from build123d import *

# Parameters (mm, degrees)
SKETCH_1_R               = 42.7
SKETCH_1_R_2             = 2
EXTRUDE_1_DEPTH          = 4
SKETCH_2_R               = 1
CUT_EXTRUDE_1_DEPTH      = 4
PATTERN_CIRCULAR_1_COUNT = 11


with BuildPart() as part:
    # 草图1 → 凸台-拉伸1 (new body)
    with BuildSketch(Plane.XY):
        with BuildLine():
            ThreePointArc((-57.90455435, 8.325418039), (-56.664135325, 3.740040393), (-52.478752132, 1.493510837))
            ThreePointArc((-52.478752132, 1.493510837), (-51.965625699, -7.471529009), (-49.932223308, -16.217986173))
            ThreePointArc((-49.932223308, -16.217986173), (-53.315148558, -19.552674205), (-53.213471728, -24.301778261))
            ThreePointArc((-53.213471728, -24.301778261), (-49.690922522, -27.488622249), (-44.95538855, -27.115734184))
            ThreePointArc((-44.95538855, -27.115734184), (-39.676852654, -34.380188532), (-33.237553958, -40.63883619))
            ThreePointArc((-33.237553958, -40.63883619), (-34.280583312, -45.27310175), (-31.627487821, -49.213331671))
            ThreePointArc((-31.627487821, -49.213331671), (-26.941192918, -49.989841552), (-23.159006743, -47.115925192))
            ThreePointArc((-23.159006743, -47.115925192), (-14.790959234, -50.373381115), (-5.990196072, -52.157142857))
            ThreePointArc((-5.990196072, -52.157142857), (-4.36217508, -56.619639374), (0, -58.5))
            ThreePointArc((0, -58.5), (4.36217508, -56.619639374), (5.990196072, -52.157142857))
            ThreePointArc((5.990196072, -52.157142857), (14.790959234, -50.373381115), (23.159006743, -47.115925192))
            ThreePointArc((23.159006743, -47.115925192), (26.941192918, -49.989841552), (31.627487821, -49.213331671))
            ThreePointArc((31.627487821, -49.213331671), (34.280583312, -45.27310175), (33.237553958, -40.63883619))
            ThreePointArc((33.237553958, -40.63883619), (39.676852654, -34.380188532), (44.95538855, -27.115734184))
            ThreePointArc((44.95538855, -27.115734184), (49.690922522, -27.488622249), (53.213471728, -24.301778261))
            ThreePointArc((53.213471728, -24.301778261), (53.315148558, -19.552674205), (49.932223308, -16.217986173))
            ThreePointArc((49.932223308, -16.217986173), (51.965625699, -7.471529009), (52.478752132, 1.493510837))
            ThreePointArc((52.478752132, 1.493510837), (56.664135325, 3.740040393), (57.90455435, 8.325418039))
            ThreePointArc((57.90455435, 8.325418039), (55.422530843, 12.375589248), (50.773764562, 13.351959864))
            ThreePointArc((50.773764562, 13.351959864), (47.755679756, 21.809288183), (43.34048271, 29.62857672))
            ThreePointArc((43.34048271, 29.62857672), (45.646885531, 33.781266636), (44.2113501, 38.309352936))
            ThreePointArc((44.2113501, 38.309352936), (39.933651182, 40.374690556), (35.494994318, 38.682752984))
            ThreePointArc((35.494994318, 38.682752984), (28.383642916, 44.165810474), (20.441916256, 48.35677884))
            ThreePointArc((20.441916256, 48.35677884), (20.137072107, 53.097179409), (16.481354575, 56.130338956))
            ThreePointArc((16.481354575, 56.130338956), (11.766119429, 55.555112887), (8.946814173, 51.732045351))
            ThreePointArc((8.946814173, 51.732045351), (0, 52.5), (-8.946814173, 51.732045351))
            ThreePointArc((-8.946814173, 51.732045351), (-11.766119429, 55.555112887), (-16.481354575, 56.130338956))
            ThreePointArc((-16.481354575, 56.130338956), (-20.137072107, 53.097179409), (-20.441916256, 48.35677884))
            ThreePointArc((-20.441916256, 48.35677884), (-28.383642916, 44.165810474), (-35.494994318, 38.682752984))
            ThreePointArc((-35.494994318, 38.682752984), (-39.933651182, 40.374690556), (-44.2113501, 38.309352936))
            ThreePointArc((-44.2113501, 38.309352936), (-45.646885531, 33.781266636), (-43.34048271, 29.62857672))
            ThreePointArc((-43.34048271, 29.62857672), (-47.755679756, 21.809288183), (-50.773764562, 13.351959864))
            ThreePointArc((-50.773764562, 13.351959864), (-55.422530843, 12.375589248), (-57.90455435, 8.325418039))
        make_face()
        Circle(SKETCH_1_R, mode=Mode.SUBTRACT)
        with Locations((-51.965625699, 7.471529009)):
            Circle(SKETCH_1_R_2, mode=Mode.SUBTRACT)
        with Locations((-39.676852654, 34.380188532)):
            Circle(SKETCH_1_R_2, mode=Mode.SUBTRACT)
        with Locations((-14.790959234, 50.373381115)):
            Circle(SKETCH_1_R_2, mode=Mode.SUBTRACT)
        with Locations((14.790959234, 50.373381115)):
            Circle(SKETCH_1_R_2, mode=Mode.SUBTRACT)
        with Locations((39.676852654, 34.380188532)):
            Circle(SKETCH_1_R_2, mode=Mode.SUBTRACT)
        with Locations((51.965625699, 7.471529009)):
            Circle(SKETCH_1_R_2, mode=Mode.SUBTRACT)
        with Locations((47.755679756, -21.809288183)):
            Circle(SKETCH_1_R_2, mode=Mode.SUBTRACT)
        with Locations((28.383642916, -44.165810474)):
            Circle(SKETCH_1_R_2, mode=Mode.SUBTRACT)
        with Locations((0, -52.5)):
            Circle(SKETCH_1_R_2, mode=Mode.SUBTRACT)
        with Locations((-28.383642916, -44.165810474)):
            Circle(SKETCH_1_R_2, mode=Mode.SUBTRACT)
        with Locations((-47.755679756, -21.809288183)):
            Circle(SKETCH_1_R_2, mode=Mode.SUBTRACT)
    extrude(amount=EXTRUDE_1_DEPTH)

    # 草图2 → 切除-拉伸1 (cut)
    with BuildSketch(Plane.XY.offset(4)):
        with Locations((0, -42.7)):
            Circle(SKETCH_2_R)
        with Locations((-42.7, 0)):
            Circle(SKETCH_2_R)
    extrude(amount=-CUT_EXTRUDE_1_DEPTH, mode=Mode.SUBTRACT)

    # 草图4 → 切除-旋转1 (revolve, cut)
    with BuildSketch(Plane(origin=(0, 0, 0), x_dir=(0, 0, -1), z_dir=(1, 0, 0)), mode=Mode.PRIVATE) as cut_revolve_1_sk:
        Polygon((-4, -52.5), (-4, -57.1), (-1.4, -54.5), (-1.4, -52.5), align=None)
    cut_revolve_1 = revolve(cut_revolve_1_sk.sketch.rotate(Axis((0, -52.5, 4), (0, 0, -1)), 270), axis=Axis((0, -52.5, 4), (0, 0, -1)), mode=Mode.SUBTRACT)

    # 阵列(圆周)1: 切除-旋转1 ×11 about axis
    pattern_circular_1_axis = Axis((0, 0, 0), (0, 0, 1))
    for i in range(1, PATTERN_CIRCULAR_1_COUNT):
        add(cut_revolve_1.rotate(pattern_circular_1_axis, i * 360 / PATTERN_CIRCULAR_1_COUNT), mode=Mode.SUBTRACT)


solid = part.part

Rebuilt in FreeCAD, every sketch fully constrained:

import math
import FreeCAD as App
import Part
import Sketcher
Q = App.Units.Quantity

doc = App.newDocument("Part")
body = doc.addObject("PartDesign::Body", "Body")

# Sketch on XY plane
sketch1 = body.newObject("Sketcher::SketchObject", "Sketch")
sketch1.AttachmentSupport = (doc.getObject("XY_Plane"), [""])
sketch1.MapMode = "FlatFace"
sketch1.addGeometry([
    Part.ArcOfCircle(Part.Circle(App.Vector(-51.965626, 7.471529, 0), App.Vector(0, 0, 1), 6), math.radians(171.818182), math.radians(265.094011)),  # 0
    Part.ArcOfCircle(Part.Circle(App.Vector(0, 0, 0), App.Vector(0, 0, 1), 52.5), math.radians(178.36984), math.radians(197.993797)),  # 1
    Part.ArcOfCircle(Part.Circle(App.Vector(-47.75568, -21.809288, 0), App.Vector(0, 0, 1), 6), math.radians(111.269626), math.radians(204.545455)),  # 2
    Part.ArcOfCircle(Part.Circle(App.Vector(-47.75568, -21.809288, 0), App.Vector(0, 0, 1), 6), math.radians(-155.454545), math.radians(-62.178716)),  # 3
    Part.ArcOfCircle(Part.Circle(App.Vector(0, 0, 0), App.Vector(0, 0, 1), 52.5), math.radians(-148.902888), math.radians(-129.278931)),  # 4
    Part.ArcOfCircle(Part.Circle(App.Vector(-28.383643, -44.16581, 0), App.Vector(0, 0, 1), 6), math.radians(143.996898), math.radians(237.272727)),  # 5
    Part.ArcOfCircle(Part.Circle(App.Vector(-28.383643, -44.16581, 0), App.Vector(0, 0, 1), 6), math.radians(-122.727273), math.radians(-29.451444)),  # 6
    Part.ArcOfCircle(Part.Circle(App.Vector(0, 0, 0), App.Vector(0, 0, 1), 52.5), math.radians(-116.175615), math.radians(-96.551658)),  # 7
    Part.ArcOfCircle(Part.Circle(App.Vector(0, -52.5, 0), App.Vector(0, 0, 1), 6), math.radians(176.724171), math.radians(270)),  # 8
    Part.ArcOfCircle(Part.Circle(App.Vector(0, -52.5, 0), App.Vector(0, 0, 1), 6), math.radians(-90), math.radians(3.275829)),  # 9
    Part.ArcOfCircle(Part.Circle(App.Vector(0, 0, 0), App.Vector(0, 0, 1), 52.5), math.radians(-83.448342), math.radians(-63.824385)),  # 10
    Part.ArcOfCircle(Part.Circle(App.Vector(28.383643, -44.16581, 0), App.Vector(0, 0, 1), 6), math.radians(-150.548556), math.radians(-57.272727)),  # 11
    Part.ArcOfCircle(Part.Circle(App.Vector(28.383643, -44.16581, 0), App.Vector(0, 0, 1), 6), math.radians(-57.272727), math.radians(36.003102)),  # 12
    Part.ArcOfCircle(Part.Circle(App.Vector(0, 0, 0), App.Vector(0, 0, 1), 52.5), math.radians(-50.721069), math.radians(-31.097112)),  # 13
    Part.ArcOfCircle(Part.Circle(App.Vector(47.75568, -21.809288, 0), App.Vector(0, 0, 1), 6), math.radians(-117.821284), math.radians(-24.545455)),  # 14
    Part.ArcOfCircle(Part.Circle(App.Vector(47.75568, -21.809288, 0), App.Vector(0, 0, 1), 6), math.radians(-24.545455), math.radians(68.730374)),  # 15
    Part.ArcOfCircle(Part.Circle(App.Vector(0, 0, 0), App.Vector(0, 0, 1), 52.5), math.radians(-17.993797), math.radians(1.63016)),  # 16
    Part.ArcOfCircle(Part.Circle(App.Vector(51.965626, 7.471529, 0), App.Vector(0, 0, 1), 6), math.radians(-85.094011), math.radians(8.181818)),  # 17
    Part.ArcOfCircle(Part.Circle(App.Vector(51.965626, 7.471529, 0), App.Vector(0, 0, 1), 6), math.radians(8.181818), math.radians(101.457647)),  # 18
    Part.ArcOfCircle(Part.Circle(App.Vector(0, 0, 0), App.Vector(0, 0, 1), 52.5), math.radians(14.733476), math.radians(34.357433)),  # 19
    Part.ArcOfCircle(Part.Circle(App.Vector(39.676853, 34.380189, 0), App.Vector(0, 0, 1), 6), math.radians(-52.366738), math.radians(40.909091)),  # 20
    Part.ArcOfCircle(Part.Circle(App.Vector(39.676853, 34.380189, 0), App.Vector(0, 0, 1), 6), math.radians(40.909091), math.radians(134.18492)),  # 21
    Part.ArcOfCircle(Part.Circle(App.Vector(0, 0, 0), App.Vector(0, 0, 1), 52.5), math.radians(47.460749), math.radians(67.084706)),  # 22
    Part.ArcOfCircle(Part.Circle(App.Vector(14.790959, 50.373381, 0), App.Vector(0, 0, 1), 6), math.radians(-19.639465), math.radians(73.636364)),  # 23
    Part.ArcOfCircle(Part.Circle(App.Vector(14.790959, 50.373381, 0), App.Vector(0, 0, 1), 6), math.radians(73.636364), math.radians(166.912193)),  # 24
    Part.ArcOfCircle(Part.Circle(App.Vector(0, 0, 0), App.Vector(0, 0, 1), 52.5), math.radians(80.188022), math.radians(99.811978)),  # 25
    Part.ArcOfCircle(Part.Circle(App.Vector(-14.790959, 50.373381, 0), App.Vector(0, 0, 1), 6), math.radians(13.087807), math.radians(106.363636)),  # 26
    Part.ArcOfCircle(Part.Circle(App.Vector(-14.790959, 50.373381, 0), App.Vector(0, 0, 1), 6), math.radians(106.363636), math.radians(199.639465)),  # 27
    Part.ArcOfCircle(Part.Circle(App.Vector(0, 0, 0), App.Vector(0, 0, 1), 52.5), math.radians(112.915294), math.radians(132.539251)),  # 28
    Part.ArcOfCircle(Part.Circle(App.Vector(-39.676853, 34.380189, 0), App.Vector(0, 0, 1), 6), math.radians(45.81508), math.radians(139.090909)),  # 29
    Part.ArcOfCircle(Part.Circle(App.Vector(-39.676853, 34.380189, 0), App.Vector(0, 0, 1), 6), math.radians(139.090909), math.radians(232.366738)),  # 30
    Part.ArcOfCircle(Part.Circle(App.Vector(0, 0, 0), App.Vector(0, 0, 1), 52.5), math.radians(145.642567), math.radians(165.266524)),  # 31
    Part.ArcOfCircle(Part.Circle(App.Vector(-51.965626, 7.471529, 0), App.Vector(0, 0, 1), 6), math.radians(78.542353), math.radians(171.818182)),  # 32
    Part.Circle(App.Vector(-28.383643, -44.16581, 0), App.Vector(0, 0, 1), 2),  # 33
    Part.Circle(App.Vector(0, -52.5, 0), App.Vector(0, 0, 1), 2),  # 34
    Part.Circle(App.Vector(-47.75568, -21.809288, 0), App.Vector(0, 0, 1), 2),  # 35
    Part.Circle(App.Vector(28.383643, -44.16581, 0), App.Vector(0, 0, 1), 2),  # 36
    Part.Circle(App.Vector(47.75568, -21.809288, 0), App.Vector(0, 0, 1), 2),  # 37
    Part.Circle(App.Vector(-51.965626, 7.471529, 0), App.Vector(0, 0, 1), 2),  # 38
    Part.Circle(App.Vector(0, 0, 0), App.Vector(0, 0, 1), 42.7),  # 39
    Part.Circle(App.Vector(-39.676853, 34.380189, 0), App.Vector(0, 0, 1), 2),  # 40
    Part.Circle(App.Vector(-14.790959, 50.373381, 0), App.Vector(0, 0, 1), 2),  # 41
    Part.Circle(App.Vector(51.965626, 7.471529, 0), App.Vector(0, 0, 1), 2),  # 42
    Part.Circle(App.Vector(14.790959, 50.373381, 0), App.Vector(0, 0, 1), 2),  # 43
    Part.Circle(App.Vector(39.676853, 34.380189, 0), App.Vector(0, 0, 1), 2),  # 44
], False)
sketch1.addConstraint([
    Sketcher.Constraint("Coincident", 0, 2, 1, 1),
    Sketcher.Constraint("Coincident", 1, 2, 2, 1),
    Sketcher.Constraint("Tangent", 2, 2, 3, 1),
    Sketcher.Constraint("Coincident", 3, 2, 4, 1),
    Sketcher.Constraint("Coincident", 4, 2, 5, 1),
    Sketcher.Constraint("Tangent", 5, 2, 6, 1),
    Sketcher.Constraint("Coincident", 6, 2, 7, 1),
    Sketcher.Constraint("Coincident", 7, 2, 8, 1),
    Sketcher.Constraint("Tangent", 8, 2, 9, 1),
    Sketcher.Constraint("Coincident", 9, 2, 10, 1),
    Sketcher.Constraint("Coincident", 10, 2, 11, 1),
    Sketcher.Constraint("Tangent", 11, 2, 12, 1),
    Sketcher.Constraint("Coincident", 12, 2, 13, 1),
    Sketcher.Constraint("Coincident", 13, 2, 14, 1),
    Sketcher.Constraint("Tangent", 14, 2, 15, 1),
    Sketcher.Constraint("Coincident", 15, 2, 16, 1),
    Sketcher.Constraint("Coincident", 16, 2, 17, 1),
    Sketcher.Constraint("Tangent", 17, 2, 18, 1),
    Sketcher.Constraint("Coincident", 18, 2, 19, 1),
    Sketcher.Constraint("Coincident", 19, 2, 20, 1),
    Sketcher.Constraint("Tangent", 20, 2, 21, 1),
    Sketcher.Constraint("Coincident", 21, 2, 22, 1),
    Sketcher.Constraint("Coincident", 22, 2, 23, 1),
    Sketcher.Constraint("Tangent", 23, 2, 24, 1),
    Sketcher.Constraint("Coincident", 24, 2, 25, 1),
    Sketcher.Constraint("Coincident", 25, 2, 26, 1),
    Sketcher.Constraint("Tangent", 26, 2, 27, 1),
    Sketcher.Constraint("Coincident", 27, 2, 28, 1),
    Sketcher.Constraint("Coincident", 28, 2, 29, 1),
    Sketcher.Constraint("Tangent", 29, 2, 30, 1),
    Sketcher.Constraint("Coincident", 30, 2, 31, 1),
    Sketcher.Constraint("Coincident", 31, 2, 32, 1),
    Sketcher.Constraint("Tangent", 32, 2, 0, 1),
    Sketcher.Constraint("Coincident", 1, 3, -1, 1),
    Sketcher.Constraint("Coincident", 4, 3, -1, 1),
    Sketcher.Constraint("Coincident", 7, 3, -1, 1),
    Sketcher.Constraint("Coincident", 10, 3, -1, 1),
    Sketcher.Constraint("Coincident", 13, 3, -1, 1),
    Sketcher.Constraint("Coincident", 16, 3, -1, 1),
    Sketcher.Constraint("Coincident", 19, 3, -1, 1),
    Sketcher.Constraint("Coincident", 22, 3, -1, 1),
    Sketcher.Constraint("Coincident", 25, 3, -1, 1),
    Sketcher.Constraint("Coincident", 28, 3, -1, 1),
    Sketcher.Constraint("Coincident", 31, 3, -1, 1),
    Sketcher.Constraint("Coincident", 39, 3, -1, 1),
    Sketcher.Constraint("Coincident", 33, 3, 5, 3),
    Sketcher.Constraint("Coincident", 34, 3, 8, 3),
    Sketcher.Constraint("Coincident", 35, 3, 2, 3),
    Sketcher.Constraint("Coincident", 36, 3, 11, 3),
    Sketcher.Constraint("Coincident", 37, 3, 14, 3),
    Sketcher.Constraint("Coincident", 38, 3, 0, 3),
    Sketcher.Constraint("Coincident", 40, 3, 29, 3),
    Sketcher.Constraint("Coincident", 41, 3, 26, 3),
    Sketcher.Constraint("Coincident", 42, 3, 17, 3),
    Sketcher.Constraint("Coincident", 43, 3, 23, 3),
    Sketcher.Constraint("Coincident", 44, 3, 20, 3),
    Sketcher.Constraint("Equal", 0, 2),
    Sketcher.Constraint("Equal", 2, 3),
    Sketcher.Constraint("Equal", 1, 4),
    Sketcher.Constraint("Equal", 3, 5),
    Sketcher.Constraint("Equal", 5, 6),
    Sketcher.Constraint("Equal", 4, 7),
    Sketcher.Constraint("Equal", 6, 8),
    Sketcher.Constraint("Equal", 8, 9),
    Sketcher.Constraint("Equal", 7, 10),
    Sketcher.Constraint("Equal", 9, 11),
    Sketcher.Constraint("Equal", 11, 12),
    Sketcher.Constraint("Equal", 10, 13),
    Sketcher.Constraint("Equal", 12, 14),
    Sketcher.Constraint("Equal", 14, 15),
    Sketcher.Constraint("Equal", 13, 16),
    Sketcher.Constraint("Equal", 15, 17),
    Sketcher.Constraint("Equal", 17, 18),
    Sketcher.Constraint("Equal", 16, 19),
    Sketcher.Constraint("Equal", 18, 20),
    Sketcher.Constraint("Equal", 20, 21),
    Sketcher.Constraint("Equal", 19, 22),
    Sketcher.Constraint("Equal", 21, 23),
    Sketcher.Constraint("Equal", 23, 24),
    Sketcher.Constraint("Equal", 22, 25),
    Sketcher.Constraint("Equal", 24, 26),
    Sketcher.Constraint("Equal", 26, 27),
    Sketcher.Constraint("Equal", 25, 28),
    Sketcher.Constraint("Equal", 27, 29),
    Sketcher.Constraint("Equal", 29, 30),
    Sketcher.Constraint("Equal", 28, 31),
    Sketcher.Constraint("Equal", 30, 32),
    Sketcher.Constraint("Equal", 33, 34),
    Sketcher.Constraint("Equal", 34, 35),
    Sketcher.Constraint("Equal", 35, 36),
    Sketcher.Constraint("Equal", 36, 37),
    Sketcher.Constraint("Equal", 37, 38),
    Sketcher.Constraint("Equal", 38, 40),
    Sketcher.Constraint("Equal", 40, 41),
    Sketcher.Constraint("Equal", 41, 42),
    Sketcher.Constraint("Equal", 42, 43),
    Sketcher.Constraint("Equal", 43, 44),
    Sketcher.Constraint("Symmetric", 5, 3, 11, 3, -2),
    Sketcher.Constraint("Symmetric", 2, 3, 14, 3, -2),
    Sketcher.Constraint("Symmetric", 0, 3, 17, 3, -2),
    Sketcher.Constraint("Symmetric", 23, 3, 26, 3, -2),
    Sketcher.Constraint("Symmetric", 20, 3, 29, 3, -2),
    Sketcher.Constraint("PointOnObject", 8, 3, -2),
    Sketcher.Constraint("PointOnObject", 8, 2, -2),
    Sketcher.Constraint("Horizontal", 5, 2, 11, 2),
    Sketcher.Constraint("Horizontal", 2, 2, 14, 2),
    Sketcher.Constraint("Horizontal", 23, 2, 26, 2),
    Sketcher.Constraint("Horizontal", 20, 2, 29, 2),
    Sketcher.Constraint("Horizontal", 17, 2, 32, 2),
    Sketcher.Constraint("Diameter", 33, 4.0),
    Sketcher.Constraint("Radius", 0, 6.0),
    Sketcher.Constraint("Diameter", 39, 85.4),
    Sketcher.Constraint("Radius", 1, 52.5),
    Sketcher.Constraint("DistanceY", 8, 3, -1, 1, 52.5),
    Sketcher.Constraint("DistanceY", -1, 1, 0, 3, 7.471529),
    Sketcher.Constraint("DistanceX", 2, 3, -1, 1, 47.75568),
    Sketcher.Constraint("DistanceY", 2, 3, -1, 1, 21.809288),
    Sketcher.Constraint("DistanceY", 5, 3, -1, 1, 44.16581),
    Sketcher.Constraint("DistanceY", -1, 1, 20, 3, 34.380189),
    Sketcher.Constraint("DistanceX", -1, 1, 23, 3, 14.790959),
    Sketcher.Constraint("DistanceY", -1, 1, 23, 3, 50.373381),
    Sketcher.Constraint("DistanceY", -1, 1, 0, 2, 1.493511),
    Sketcher.Constraint("DistanceX", 2, 2, -1, 1, 53.213472),
    Sketcher.Constraint("DistanceY", 5, 2, -1, 1, 49.213332),
    Sketcher.Constraint("DistanceY", -1, 1, 17, 2, 8.325418),
    Sketcher.Constraint("DistanceX", -1, 1, 20, 2, 44.21135),
    Sketcher.Constraint("DistanceY", -1, 1, 23, 2, 56.130339),
    Sketcher.Constraint("DistanceX", 5, 3, -1, 1, 28.383643),
    Sketcher.Constraint("DistanceX", -1, 1, 20, 3, 39.676853),
])
pad1 = body.newObject("PartDesign::Pad", "Pad")
pad1.Profile = sketch1
pad1.Length = 4

# Sketch on XY plane
sketch2 = body.newObject("Sketcher::SketchObject", "Sketch001")
sketch2.AttachmentSupport = (doc.getObject("XY_Plane"), [""])
sketch2.MapMode = "FlatFace"
sketch2.AttachmentOffset = App.Placement(App.Vector(0, 0, 4), App.Rotation())
sketch2.addGeometry([
    Part.Circle(App.Vector(0, -42.7, 0), App.Vector(0, 0, 1), 1),
    Part.Circle(App.Vector(-42.7, 0, 0), App.Vector(0, 0, 1), 1),
], False)
sketch2.addConstraint([
    Sketcher.Constraint("Equal", 0, 1),
    Sketcher.Constraint("PointOnObject", 0, 3, -2),
    Sketcher.Constraint("PointOnObject", 1, 3, -1),
    Sketcher.Constraint("Diameter", 0, 2.0),
    Sketcher.Constraint("DistanceY", 0, 3, -1, 1, 42.7),
    Sketcher.Constraint("DistanceX", 1, 3, -1, 1, 42.7),
])
pocket1 = body.newObject("PartDesign::Pocket", "Pocket")
pocket1.Profile = sketch2
pocket1.Length = 4

# Sketch on YZ plane
sketch3 = body.newObject("Sketcher::SketchObject", "Sketch002")
sketch3.AttachmentSupport = (doc.getObject("YZ_Plane"), [""])
sketch3.MapMode = "FlatFace"
sketch3.addGeometry([
    Part.LineSegment(App.Vector(-52.5, 4, 0), App.Vector(-57.1, 4, 0)),
    Part.LineSegment(App.Vector(-57.1, 4, 0), App.Vector(-54.5, 1.4, 0)),
    Part.LineSegment(App.Vector(-54.5, 1.4, 0), App.Vector(-52.5, 1.4, 0)),
    Part.LineSegment(App.Vector(-52.5, 1.4, 0), App.Vector(-52.5, 4, 0)),
], False)
sketch3.addGeometry(Part.LineSegment(App.Vector(-52.5, 4, 0), App.Vector(-52.5, 1.4, 0)), True)  # axis
sketch3.addConstraint([
    Sketcher.Constraint("Coincident", 0, 2, 1, 1),
    Sketcher.Constraint("Coincident", 1, 2, 2, 1),
    Sketcher.Constraint("Coincident", 2, 2, 3, 1),
    Sketcher.Constraint("Coincident", 3, 2, 0, 1),
    Sketcher.Constraint("Horizontal", 0),
    Sketcher.Constraint("Horizontal", 2),
    Sketcher.Constraint("Vertical", 3),
    Sketcher.Constraint("Vertical", 4),
    Sketcher.Constraint("Coincident", 4, 1, 3, 2),
    Sketcher.Constraint("Horizontal", 1, 2, 4, 2),
    Sketcher.Constraint("DistanceX", 2, 1, 2, 2, 2.0),
    Sketcher.Constraint("Angle", 1, Q("-45 deg")),
    Sketcher.Constraint("DistanceX", 0, 2, 0, 1, 4.6),
    Sketcher.Constraint("DistanceY", -1, 1, 0, 2, 4.0),
    Sketcher.Constraint("DistanceX", 0, 2, -1, 1, 57.1),
])
groove = body.newObject("PartDesign::Groove", "Groove")
groove.Profile = sketch3
groove.ReferenceAxis = (sketch3, ["Axis0"])
groove.Angle = 360
doc.recompute()

polarpattern = body.newObject("PartDesign::PolarPattern", "PolarPattern")
polarpattern.Originals = [groove]
polarpattern.Axis = (doc.getObject("Z_Axis"), [""])
polarpattern.Angle = 360
polarpattern.Occurrences = 11
body.Tip = polarpattern

doc.recompute()
